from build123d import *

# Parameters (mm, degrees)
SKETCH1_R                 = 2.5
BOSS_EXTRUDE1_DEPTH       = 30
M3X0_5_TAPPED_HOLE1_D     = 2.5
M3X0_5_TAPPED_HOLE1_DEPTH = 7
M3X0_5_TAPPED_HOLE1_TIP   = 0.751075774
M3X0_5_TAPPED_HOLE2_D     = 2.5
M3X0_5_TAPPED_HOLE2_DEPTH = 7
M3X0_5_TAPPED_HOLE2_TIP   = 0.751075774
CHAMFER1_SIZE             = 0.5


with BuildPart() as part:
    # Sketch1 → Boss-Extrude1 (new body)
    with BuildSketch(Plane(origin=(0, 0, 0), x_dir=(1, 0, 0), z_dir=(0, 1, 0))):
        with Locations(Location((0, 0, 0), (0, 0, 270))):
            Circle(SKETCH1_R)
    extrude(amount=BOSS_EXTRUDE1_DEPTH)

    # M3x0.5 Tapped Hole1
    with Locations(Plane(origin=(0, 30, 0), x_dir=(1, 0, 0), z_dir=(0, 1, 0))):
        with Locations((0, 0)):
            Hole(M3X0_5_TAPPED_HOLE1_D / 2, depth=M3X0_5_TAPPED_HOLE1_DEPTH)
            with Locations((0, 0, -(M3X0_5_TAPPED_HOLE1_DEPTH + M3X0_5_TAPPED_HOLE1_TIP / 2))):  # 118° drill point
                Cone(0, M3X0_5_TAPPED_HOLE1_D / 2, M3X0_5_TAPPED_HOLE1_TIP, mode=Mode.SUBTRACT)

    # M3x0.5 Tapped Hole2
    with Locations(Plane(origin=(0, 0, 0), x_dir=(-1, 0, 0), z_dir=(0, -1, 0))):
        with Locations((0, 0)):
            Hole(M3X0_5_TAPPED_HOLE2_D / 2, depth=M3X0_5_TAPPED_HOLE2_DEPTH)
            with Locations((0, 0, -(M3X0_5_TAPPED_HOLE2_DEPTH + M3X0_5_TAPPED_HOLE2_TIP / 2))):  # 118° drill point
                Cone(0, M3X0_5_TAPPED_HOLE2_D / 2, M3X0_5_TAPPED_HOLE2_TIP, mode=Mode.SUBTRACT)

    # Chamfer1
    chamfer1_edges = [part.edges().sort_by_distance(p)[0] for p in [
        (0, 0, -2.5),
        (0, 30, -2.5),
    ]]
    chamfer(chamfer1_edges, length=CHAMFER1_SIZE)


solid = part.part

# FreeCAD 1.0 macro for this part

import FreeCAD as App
import Part
import Sketcher
from FreeCAD import Vector


def edges_at(feature, points):
    """Names of the edges that pass closest to the given points."""
    edges = feature.Shape.Edges
    near = lambda p: min(range(len(edges)), key=lambda i: edges[i].distToShape(Part.Vertex(*p))[0])
    return sorted({f"Edge{near(p) + 1}" for p in points})

doc = App.newDocument("Part")
body = doc.addObject("PartDesign::Body", "Body")

sketch1 = body.newObject("Sketcher::SketchObject", "Sketch")
sketch1.AttachmentSupport = (doc.getObject("XZ_Plane"), [""])
sketch1.MapMode = "FlatFace"
sketch1.addGeometry(Part.Circle(Vector(0, 0, 0), Vector(0, 0, 1), 2.5), False)
sketch1.addConstraint([
    Sketcher.Constraint("Coincident", 0, 3, -1, 1),
    Sketcher.Constraint("Diameter", 0, 5.0),
])
pad1 = body.newObject("PartDesign::Pad", "Pad")
pad1.Profile = sketch1
pad1.Length = 30
pad1.Reversed = True

sketch2 = body.newObject("Sketcher::SketchObject", "Sketch001")
sketch2.AttachmentSupport = (doc.getObject("XZ_Plane"), [""])
sketch2.MapMode = "FlatFace"
sketch2.AttachmentOffset = App.Placement(Vector(0, 0, -30), App.Rotation())
sketch2.addGeometry(Part.Circle(Vector(0, 0, 0), Vector(0, 0, 1), 1.2), False)
sketch2.addConstraint([
    Sketcher.Constraint("Coincident", 0, 3, -1, 1),
    Sketcher.Constraint("Diameter", 0, 2.5),
])
doc.recompute()
hole = body.newObject("PartDesign::Hole", "Hole")
hole.Profile = sketch2
hole.ThreadType = "None"
hole.Diameter = 2.5
hole.DepthType = "Dimension"
hole.Depth = 7
hole.DrillPoint = "Angled"
hole.DrillPointAngle = 118
hole.Reversed = True

sketch3 = body.newObject("Sketcher::SketchObject", "Sketch002")
sketch3.AttachmentSupport = (doc.getObject("XZ_Plane"), [""])
sketch3.MapMode = "FlatFace"
sketch3.addGeometry(Part.Circle(Vector(0, 0, 0), Vector(0, 0, 1), 1.2), False)
sketch3.addConstraint([
    Sketcher.Constraint("Coincident", 0, 3, -1, 1),
    Sketcher.Constraint("Diameter", 0, 2.5),
])
doc.recompute()
hole2 = body.newObject("PartDesign::Hole", "Hole001")
hole2.Profile = sketch3
hole2.ThreadType = "None"
hole2.Diameter = 2.5
hole2.DepthType = "Dimension"
hole2.Depth = 7
hole2.DrillPoint = "Angled"
hole2.DrillPointAngle = 118
doc.recompute()

chamfer = body.newObject("PartDesign::Chamfer", "Chamfer")
chamfer.Base = (hole2, edges_at(hole2, [(0, 0, -2.5), (0, 30, -2.5)]))
chamfer.Size = 0.5

doc.recompute()
